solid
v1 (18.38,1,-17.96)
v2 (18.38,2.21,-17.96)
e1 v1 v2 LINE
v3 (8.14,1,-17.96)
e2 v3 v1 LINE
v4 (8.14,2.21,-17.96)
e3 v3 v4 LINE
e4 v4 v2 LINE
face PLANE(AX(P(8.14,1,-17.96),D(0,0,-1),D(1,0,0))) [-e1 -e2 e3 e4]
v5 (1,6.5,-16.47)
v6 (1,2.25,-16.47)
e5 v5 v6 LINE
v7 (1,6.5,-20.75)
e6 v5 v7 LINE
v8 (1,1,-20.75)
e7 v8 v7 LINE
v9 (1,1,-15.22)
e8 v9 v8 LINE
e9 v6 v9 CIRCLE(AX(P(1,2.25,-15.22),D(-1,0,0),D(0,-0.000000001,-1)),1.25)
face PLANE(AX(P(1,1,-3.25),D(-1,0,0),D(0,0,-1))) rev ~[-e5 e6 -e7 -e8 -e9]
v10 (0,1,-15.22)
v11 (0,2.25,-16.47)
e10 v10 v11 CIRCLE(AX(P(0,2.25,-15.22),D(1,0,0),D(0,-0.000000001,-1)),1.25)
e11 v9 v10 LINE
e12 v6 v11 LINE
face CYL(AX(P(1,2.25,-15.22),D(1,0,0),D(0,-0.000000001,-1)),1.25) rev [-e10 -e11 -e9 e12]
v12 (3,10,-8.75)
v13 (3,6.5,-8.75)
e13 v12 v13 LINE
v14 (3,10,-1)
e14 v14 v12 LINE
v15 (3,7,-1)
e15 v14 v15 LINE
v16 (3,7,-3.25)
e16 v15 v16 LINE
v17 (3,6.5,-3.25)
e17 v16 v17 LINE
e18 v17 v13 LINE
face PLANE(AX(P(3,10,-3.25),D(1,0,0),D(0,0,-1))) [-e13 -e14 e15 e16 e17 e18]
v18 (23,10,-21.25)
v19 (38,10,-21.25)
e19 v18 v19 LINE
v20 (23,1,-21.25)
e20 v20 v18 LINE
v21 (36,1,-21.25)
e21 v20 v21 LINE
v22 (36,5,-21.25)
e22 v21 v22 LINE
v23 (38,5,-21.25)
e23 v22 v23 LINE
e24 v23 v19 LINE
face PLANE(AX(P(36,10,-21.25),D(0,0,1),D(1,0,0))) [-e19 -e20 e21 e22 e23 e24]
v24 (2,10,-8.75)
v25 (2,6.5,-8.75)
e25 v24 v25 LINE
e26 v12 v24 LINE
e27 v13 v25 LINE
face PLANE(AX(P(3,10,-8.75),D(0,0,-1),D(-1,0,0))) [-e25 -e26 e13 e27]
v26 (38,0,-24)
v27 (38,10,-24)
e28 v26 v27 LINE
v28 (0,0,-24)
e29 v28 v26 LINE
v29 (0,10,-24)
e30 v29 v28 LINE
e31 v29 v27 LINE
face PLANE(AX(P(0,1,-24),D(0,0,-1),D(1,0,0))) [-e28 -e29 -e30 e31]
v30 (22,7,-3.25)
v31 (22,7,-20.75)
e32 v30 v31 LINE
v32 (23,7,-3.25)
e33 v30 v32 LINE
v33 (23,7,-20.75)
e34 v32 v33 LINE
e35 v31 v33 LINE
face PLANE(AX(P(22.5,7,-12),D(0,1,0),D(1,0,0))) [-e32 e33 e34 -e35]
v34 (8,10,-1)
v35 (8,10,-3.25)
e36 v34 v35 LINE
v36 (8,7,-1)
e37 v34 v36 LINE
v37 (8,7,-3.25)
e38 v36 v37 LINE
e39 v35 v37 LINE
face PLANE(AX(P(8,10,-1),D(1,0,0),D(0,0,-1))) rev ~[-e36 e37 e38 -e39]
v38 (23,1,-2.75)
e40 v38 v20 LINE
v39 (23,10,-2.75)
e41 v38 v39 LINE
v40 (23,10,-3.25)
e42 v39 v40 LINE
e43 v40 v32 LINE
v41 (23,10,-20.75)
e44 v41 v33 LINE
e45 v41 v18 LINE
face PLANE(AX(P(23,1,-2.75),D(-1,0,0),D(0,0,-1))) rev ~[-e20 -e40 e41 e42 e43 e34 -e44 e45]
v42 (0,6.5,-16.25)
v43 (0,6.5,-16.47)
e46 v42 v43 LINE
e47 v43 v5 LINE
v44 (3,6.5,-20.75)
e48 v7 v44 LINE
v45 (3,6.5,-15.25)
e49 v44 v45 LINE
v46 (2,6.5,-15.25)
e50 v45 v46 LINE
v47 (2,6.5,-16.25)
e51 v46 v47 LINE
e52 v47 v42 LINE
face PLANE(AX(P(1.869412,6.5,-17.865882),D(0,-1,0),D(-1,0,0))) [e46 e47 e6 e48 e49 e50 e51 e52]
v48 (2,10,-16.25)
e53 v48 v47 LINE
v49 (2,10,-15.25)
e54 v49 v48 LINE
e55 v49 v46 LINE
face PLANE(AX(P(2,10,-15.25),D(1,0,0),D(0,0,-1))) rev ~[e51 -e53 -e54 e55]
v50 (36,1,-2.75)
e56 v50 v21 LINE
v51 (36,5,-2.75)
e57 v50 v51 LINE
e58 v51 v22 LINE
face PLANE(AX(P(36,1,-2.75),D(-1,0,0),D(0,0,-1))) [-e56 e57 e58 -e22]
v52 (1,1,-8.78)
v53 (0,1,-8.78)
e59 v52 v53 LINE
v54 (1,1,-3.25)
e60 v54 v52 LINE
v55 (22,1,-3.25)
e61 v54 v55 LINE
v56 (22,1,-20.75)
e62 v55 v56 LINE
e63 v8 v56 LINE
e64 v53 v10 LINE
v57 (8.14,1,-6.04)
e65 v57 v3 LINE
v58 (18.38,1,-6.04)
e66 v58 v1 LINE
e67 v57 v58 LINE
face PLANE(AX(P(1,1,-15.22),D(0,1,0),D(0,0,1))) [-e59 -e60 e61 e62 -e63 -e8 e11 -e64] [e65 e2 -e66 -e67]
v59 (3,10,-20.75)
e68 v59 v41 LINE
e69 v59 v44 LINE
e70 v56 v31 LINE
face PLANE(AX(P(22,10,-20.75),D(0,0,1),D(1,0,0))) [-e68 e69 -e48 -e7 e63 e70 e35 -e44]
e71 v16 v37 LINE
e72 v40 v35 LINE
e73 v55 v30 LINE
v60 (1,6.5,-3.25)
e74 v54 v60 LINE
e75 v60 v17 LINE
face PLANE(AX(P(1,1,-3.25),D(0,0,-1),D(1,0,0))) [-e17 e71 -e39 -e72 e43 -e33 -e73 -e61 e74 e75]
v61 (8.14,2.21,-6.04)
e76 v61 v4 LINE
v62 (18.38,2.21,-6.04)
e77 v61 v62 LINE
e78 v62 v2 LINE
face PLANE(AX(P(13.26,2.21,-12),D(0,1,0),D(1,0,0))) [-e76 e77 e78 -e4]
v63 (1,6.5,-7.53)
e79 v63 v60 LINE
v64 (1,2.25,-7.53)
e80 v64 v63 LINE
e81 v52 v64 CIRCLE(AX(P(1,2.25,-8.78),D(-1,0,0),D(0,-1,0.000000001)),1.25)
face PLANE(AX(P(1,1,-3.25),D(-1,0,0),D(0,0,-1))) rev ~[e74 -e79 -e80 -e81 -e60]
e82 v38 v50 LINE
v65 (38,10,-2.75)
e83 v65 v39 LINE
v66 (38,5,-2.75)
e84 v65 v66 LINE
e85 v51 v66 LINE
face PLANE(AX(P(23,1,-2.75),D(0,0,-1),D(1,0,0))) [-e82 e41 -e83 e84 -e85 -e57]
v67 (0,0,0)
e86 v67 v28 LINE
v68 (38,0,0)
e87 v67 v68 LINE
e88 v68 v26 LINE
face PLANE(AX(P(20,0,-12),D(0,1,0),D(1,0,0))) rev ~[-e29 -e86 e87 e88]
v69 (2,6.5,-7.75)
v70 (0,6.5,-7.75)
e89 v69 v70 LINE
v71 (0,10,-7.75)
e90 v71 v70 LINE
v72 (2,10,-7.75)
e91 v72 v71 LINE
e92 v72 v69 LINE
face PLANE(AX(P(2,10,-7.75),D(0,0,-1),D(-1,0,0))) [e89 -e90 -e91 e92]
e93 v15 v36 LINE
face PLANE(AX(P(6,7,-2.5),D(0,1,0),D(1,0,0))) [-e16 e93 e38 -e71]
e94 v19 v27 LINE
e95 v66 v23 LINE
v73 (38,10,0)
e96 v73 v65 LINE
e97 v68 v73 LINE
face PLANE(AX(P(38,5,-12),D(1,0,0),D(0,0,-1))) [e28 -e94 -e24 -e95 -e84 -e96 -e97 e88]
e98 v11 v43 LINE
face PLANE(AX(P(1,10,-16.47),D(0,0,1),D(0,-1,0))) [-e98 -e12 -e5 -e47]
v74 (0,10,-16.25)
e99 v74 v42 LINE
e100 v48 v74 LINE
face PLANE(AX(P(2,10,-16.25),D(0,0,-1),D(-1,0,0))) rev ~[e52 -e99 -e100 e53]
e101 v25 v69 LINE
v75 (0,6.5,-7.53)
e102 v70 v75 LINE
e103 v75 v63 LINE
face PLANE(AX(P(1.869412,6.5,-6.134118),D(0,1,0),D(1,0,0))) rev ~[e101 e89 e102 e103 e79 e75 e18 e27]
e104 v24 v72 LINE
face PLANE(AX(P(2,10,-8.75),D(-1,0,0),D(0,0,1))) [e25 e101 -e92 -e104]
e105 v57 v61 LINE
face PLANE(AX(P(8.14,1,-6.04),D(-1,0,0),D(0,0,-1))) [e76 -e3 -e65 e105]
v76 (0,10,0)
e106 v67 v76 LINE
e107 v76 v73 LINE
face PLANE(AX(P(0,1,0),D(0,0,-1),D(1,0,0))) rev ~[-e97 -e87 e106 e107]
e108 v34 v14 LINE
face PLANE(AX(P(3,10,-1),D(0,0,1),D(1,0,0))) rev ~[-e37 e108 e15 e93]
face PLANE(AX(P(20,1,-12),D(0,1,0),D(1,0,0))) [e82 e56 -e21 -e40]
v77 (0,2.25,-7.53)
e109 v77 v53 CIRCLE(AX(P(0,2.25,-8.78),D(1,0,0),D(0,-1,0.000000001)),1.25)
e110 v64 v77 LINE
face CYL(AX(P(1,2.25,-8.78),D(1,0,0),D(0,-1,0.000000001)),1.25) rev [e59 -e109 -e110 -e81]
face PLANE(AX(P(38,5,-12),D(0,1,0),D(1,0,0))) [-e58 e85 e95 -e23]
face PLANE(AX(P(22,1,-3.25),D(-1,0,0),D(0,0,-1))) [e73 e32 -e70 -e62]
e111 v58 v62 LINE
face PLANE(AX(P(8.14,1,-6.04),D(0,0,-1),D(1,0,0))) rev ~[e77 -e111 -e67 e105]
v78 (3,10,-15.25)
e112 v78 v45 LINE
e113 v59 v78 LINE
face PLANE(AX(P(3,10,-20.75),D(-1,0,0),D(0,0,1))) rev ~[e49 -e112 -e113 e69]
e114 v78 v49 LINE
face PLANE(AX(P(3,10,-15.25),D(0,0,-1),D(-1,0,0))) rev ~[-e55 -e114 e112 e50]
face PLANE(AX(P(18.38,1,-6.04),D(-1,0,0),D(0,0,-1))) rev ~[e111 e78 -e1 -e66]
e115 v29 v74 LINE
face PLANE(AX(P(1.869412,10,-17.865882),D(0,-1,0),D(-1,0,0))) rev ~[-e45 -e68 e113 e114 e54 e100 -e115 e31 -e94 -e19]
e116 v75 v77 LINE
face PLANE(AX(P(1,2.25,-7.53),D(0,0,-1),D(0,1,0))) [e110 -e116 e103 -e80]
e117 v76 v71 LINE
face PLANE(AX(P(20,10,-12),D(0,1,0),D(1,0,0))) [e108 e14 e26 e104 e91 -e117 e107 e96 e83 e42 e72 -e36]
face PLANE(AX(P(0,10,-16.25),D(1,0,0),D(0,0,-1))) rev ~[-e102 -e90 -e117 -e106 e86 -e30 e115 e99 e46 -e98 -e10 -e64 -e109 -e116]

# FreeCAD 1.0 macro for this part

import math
import FreeCAD as App
import Part
import Sketcher
Q = App.Units.Quantity


def add_polygon(sketch, points):
    """Adds a closed chain of lines whose ends are joined by coincident constraints."""
    first, n = sketch.GeometryCount, len(points)
    for a, b in zip(points, points[1:] + points[:1]):
        sketch.addGeometry(Part.LineSegment(App.Vector(*a, 0), App.Vector(*b, 0)), False)
    for i in range(n):
        sketch.addConstraint(Sketcher.Constraint("Coincident", first + i, 2, first + (i + 1) % n, 1))

doc = App.newDocument("Part")
body = doc.addObject("PartDesign::Body", "Body")

sketch1 = body.newObject("Sketcher::SketchObject", "Sketch")
sketch1.AttachmentSupport = (doc.getObject("XZ_Plane"), [""])
sketch1.MapMode = "FlatFace"
add_polygon(sketch1, [(0, -24), (0, 0), (40, 0), (40, -24)])
sketch1.addConstraint([
    Sketcher.Constraint("Vertical", 0),
    Sketcher.Constraint("Horizontal", 1),
    Sketcher.Constraint("Vertical", 2),
    Sketcher.Constraint("Horizontal", 3),
    Sketcher.Constraint("Coincident", 0, 2, -1, 1),
    Sketcher.Constraint("DistanceX", 1, 1, 1, 2, Q("40 mm")),
    Sketcher.Constraint("DistanceY", 0, 1, 0, 2, Q("24 mm")),
])
pad1 = body.newObject("PartDesign::Pad", "Pad")
pad1.Profile = sketch1
pad1.Length = 1
pad1.Reversed = True

sketch2 = body.newObject("Sketcher::SketchObject", "Sketch001")
sketch2.AttachmentSupport = (doc.getObject("XZ_Plane"), [""])
sketch2.MapMode = "FlatFace"
sketch2.AttachmentOffset = App.Placement(App.Vector(0, 0, -1), App.Rotation())
add_polygon(sketch2, [(0, -24), (0, 0), (40, 0), (40, -24)])
add_polygon(sketch2, [(22, -3), (1, -3), (1, -21), (22, -21)])
add_polygon(sketch2, [(36, -3), (23, -3), (23, -21), (36, -21)])
sketch2.addConstraint([
    Sketcher.Constraint("Vertical", 0),
    Sketcher.Constraint("Horizontal", 1),
    Sketcher.Constraint("Vertical", 2),
    Sketcher.Constraint("Horizontal", 3),
    Sketcher.Constraint("Horizontal", 4),
    Sketcher.Constraint("Vertical", 5),
    Sketcher.Constraint("Horizontal", 6),
    Sketcher.Constraint("Vertical", 7),
    Sketcher.Constraint("Horizontal", 8),
    Sketcher.Constraint("Vertical", 9),
    Sketcher.Constraint("Horizontal", 10),
    Sketcher.Constraint("Vertical", 11),
    Sketcher.Constraint("Coincident", 0, 2, -1, 1),
    Sketcher.Constraint("DistanceX", 1, 1, 1, 2, Q("40 mm")),
    Sketcher.Constraint("DistanceX", 4, 2, 4, 1, Q("21 mm")),
    Sketcher.Constraint("DistanceX", 8, 2, 8, 1, Q("13 mm")),
    Sketcher.Constraint("DistanceY", 0, 1, 0, 2, Q("24 mm")),
    Sketcher.Constraint("DistanceY", 5, 2, 5, 1, Q("17.5 mm")),
    Sketcher.Constraint("DistanceY", 9, 2, 9, 1, Q("18.5 mm")),
    Sketcher.Constraint("DistanceX", -1, 1, 4, 2, Q("1 mm")),
    Sketcher.Constraint("DistanceX", -1, 1, 8, 2, Q("23 mm")),
    Sketcher.Constraint("DistanceY", 6, 2, 8, 2, Q("18 mm")),
    Sketcher.Constraint("DistanceY", 4, 2, -1, 1, Q("3.25 mm")),
])
pad2 = body.newObject("PartDesign::Pad", "Pad001")
pad2.Profile = sketch2
pad2.Length = 9
pad2.Reversed = True

sketch3 = body.newObject("Sketcher::SketchObject", "Sketch002")
sketch3.AttachmentSupport = (doc.getObject("XZ_Plane"), [""])
sketch3.MapMode = "FlatFace"
sketch3.AttachmentOffset = App.Placement(App.Vector(0, 0, -10), App.Rotation())
add_polygon(sketch3, [(22, -20.8), (22, -3.2), (23, -3.2), (23, -20.8)])
sketch3.addConstraint([
    Sketcher.Constraint("Vertical", 0),
    Sketcher.Constraint("Horizontal", 1),
    Sketcher.Constraint("Vertical", 2),
    Sketcher.Constraint("Horizontal", 3),
    Sketcher.Constraint("DistanceX", 1, 1, 1, 2, Q("1 mm")),
    Sketcher.Constraint("DistanceY", 0, 1, 0, 2, Q("17.5 mm")),
    Sketcher.Constraint("DistanceX", -1, 1, 0, 2, Q("22 mm")),
    Sketcher.Constraint("DistanceY", 0, 2, -1, 1, Q("3.25 mm")),
])
pocket1 = body.newObject("PartDesign::Pocket", "Pocket")
pocket1.Profile = sketch3
pocket1.Length = 3
pocket1.Reversed = True

sketch4 = body.newObject("Sketcher::SketchObject", "Sketch003")
sketch4.AttachmentSupport = (doc.getObject("XZ_Plane"), [""])
sketch4.MapMode = "FlatFace"
sketch4.AttachmentOffset = App.Placement(App.Vector(0, 0, -1), App.Rotation())
add_polygon(sketch4, [(8, -18), (8, -6), (18, -6), (18, -18)])
sketch4.addConstraint([
    Sketcher.Constraint("Vertical", 0),
    Sketcher.Constraint("Horizontal", 1),
    Sketcher.Constraint("Vertical", 2),
    Sketcher.Constraint("Horizontal", 3),
    Sketcher.Constraint("DistanceX", 1, 1, 1, 2, Q("10.24 mm")),
    Sketcher.Constraint("DistanceY", 0, 1, 0, 2, Q("11.92 mm")),
    Sketcher.Constraint("DistanceX", -1, 1, 0, 2, Q("8.14 mm")),
    Sketcher.Constraint("DistanceY", 0, 2, -1, 1, Q("6.04 mm")),
])
pad3 = body.newObject("PartDesign::Pad", "Pad002")
pad3.Profile = sketch4
pad3.Length = 1.21
pad3.Reversed = True

sketch5 = body.newObject("Sketcher::SketchObject", "Sketch004")
sketch5.AttachmentSupport = (doc.getObject("YZ_Plane"), [""])
sketch5.MapMode = "FlatFace"
sketch5.AttachmentOffset = App.Placement(App.Vector(0, 0, 1), App.Rotation())
sketch5.addGeometry([
    Part.LineSegment(App.Vector(10, -7.5, 0), App.Vector(2.2, -7.5, 0)),
    Part.ArcOfCircle(Part.Circle(App.Vector(2.3, -8.8, 0), App.Vector(0, 0, 1), 1.3), math.radians(90), math.radians(180)),
    Part.LineSegment(App.Vector(1, -8.8, 0), App.Vector(1, -15.2, 0)),
    Part.ArcOfCircle(Part.Circle(App.Vector(2.3, -15.2, 0), App.Vector(0, 0, 1), 1.3), math.radians(-180), math.radians(-90)),
    Part.LineSegment(App.Vector(2.2, -16.5, 0), App.Vector(10, -16.5, 0)),
    Part.LineSegment(App.Vector(10, -16.5, 0), App.Vector(10, -7.5, 0)),
], False)
sketch5.addConstraint([
    Sketcher.Constraint("Tangent", 0, 2, 1, 1),
    Sketcher.Constraint("Tangent", 1, 2, 2, 1),
    Sketcher.Constraint("Tangent", 2, 2, 3, 1),
    Sketcher.Constraint("Tangent", 3, 2, 4, 1),
    Sketcher.Constraint("Coincident", 4, 2, 5, 1),
    Sketcher.Constraint("Coincident", 5, 2, 0, 1),
    Sketcher.Constraint("Horizontal", 0),
    Sketcher.Constraint("Vertical", 2),
    Sketcher.Constraint("Horizontal", 4),
    Sketcher.Constraint("Vertical", 5),
    Sketcher.Constraint("Equal", 1, 3),
    Sketcher.Constraint("Radius", 1, Q("1.25 mm")),
    Sketcher.Constraint("DistanceX", -1, 1, 1, 2, Q("1 mm")),
    Sketcher.Constraint("DistanceX", -1, 1, 4, 2, Q("10 mm")),
    Sketcher.Constraint("DistanceY", 2, 2, 2, 1, Q("6.44 mm")),
    Sketcher.Constraint("DistanceY", 1, 3, -1, 1, Q("8.78 mm")),
])
pocket2 = body.newObject("PartDesign::Pocket", "Pocket001")
pocket2.Profile = sketch5
pocket2.Length = 2

sketch6 = body.newObject("Sketcher::SketchObject", "Sketch005")
sketch6.AttachmentSupport = (doc.getObject("XZ_Plane"), [""])
sketch6.MapMode = "FlatFace"
sketch6.AttachmentOffset = App.Placement(App.Vector(0, 0, -10), App.Rotation())
add_polygon(sketch6, [(36, -21.2), (36, -2.8), (40, -2.8), (40, -21.2)])
sketch6.addConstraint([
    Sketcher.Constraint("Vertical", 0),
    Sketcher.Constraint("Horizontal", 1),
    Sketcher.Constraint("Vertical", 2),
    Sketcher.Constraint("Horizontal", 3),
    Sketcher.Constraint("DistanceX", 1, 1, 1, 2, Q("4 mm")),
    Sketcher.Constraint("DistanceY", 0, 1, 0, 2, Q("18.5 mm")),
    Sketcher.Constraint("DistanceX", -1, 1, 0, 2, Q("36 mm")),
    Sketcher.Constraint("DistanceY", 0, 2, -1, 1, Q("2.75 mm")),
])
pocket3 = body.newObject("PartDesign::Pocket", "Pocket002")
pocket3.Profile = sketch6
pocket3.Length = 5
pocket3.Reversed = True

sketch7 = body.newObject("Sketcher::SketchObject", "Sketch006")
sketch7.AttachmentSupport = (doc.getObject("YZ_Plane"), [""])
sketch7.MapMode = "FlatFace"
sketch7.AttachmentOffset = App.Placement(App.Vector(0, 0, 40), App.Rotation())
add_polygon(sketch7, [(10, 0), (0, 0), (0, -24), (10, -24)])
sketch7.addConstraint([
    Sketcher.Constraint("Horizontal", 0),
    Sketcher.Constraint("Vertical", 1),
    Sketcher.Constraint("Horizontal", 2),
    Sketcher.Constraint("Vertical", 3),
    Sketcher.Constraint("Coincident", 0, 2, -1, 1),
    Sketcher.Constraint("DistanceX", 0, 2, 0, 1, Q("10 mm")),
    Sketcher.Constraint("DistanceY", 1, 2, 1, 1, Q("24 mm")),
])
pocket4 = body.newObject("PartDesign::Pocket", "Pocket003")
pocket4.Profile = sketch7
pocket4.Length = 2

sketch8 = body.newObject("Sketcher::SketchObject", "Sketch007")
sketch8.AttachmentSupport = (doc.getObject("XZ_Plane"), [""])
sketch8.MapMode = "FlatFace"
sketch8.AttachmentOffset = App.Placement(App.Vector(0, 0, -10), App.Rotation())
add_polygon(sketch8, [(4, -4), (4, -1), (8, -1), (8, -4)])
sketch8.addConstraint([
    Sketcher.Constraint("Vertical", 0),
    Sketcher.Constraint("Horizontal", 1),
    Sketcher.Constraint("Vertical", 2),
    Sketcher.Constraint("Horizontal", 3),
    Sketcher.Constraint("DistanceX", 1, 1, 1, 2, Q("4 mm")),
    Sketcher.Constraint("DistanceY", 0, 1, 0, 2, Q("3 mm")),
    Sketcher.Constraint("DistanceX", -1, 1, 0, 2, Q("4 mm")),
    Sketcher.Constraint("DistanceY", 0, 2, -1, 1, Q("1 mm")),
])
pocket5 = body.newObject("PartDesign::Pocket", "Pocket004")
pocket5.Profile = sketch8
pocket5.Length = 3
pocket5.Reversed = True

sketch9 = body.newObject("Sketcher::SketchObject", "Sketch008")
sketch9.AttachmentSupport = (doc.getObject("XZ_Plane"), [""])
sketch9.MapMode = "FlatFace"
sketch9.AttachmentOffset = App.Placement(App.Vector(0, 0, -10), App.Rotation())
add_polygon(sketch9, [(1, -20.75), (1, -16.47), (0, -16.47), (0, -16.25), (2, -16.25), (2, -15.25), (3, -15.25), (3, -20.75)])
add_polygon(sketch9, [(1, -3.25), (3, -3.25), (3, -8.75), (2, -8.75), (2, -7.75), (0, -7.75), (0, -7.53), (1, -7.53)])
sketch9.addConstraint([
    Sketcher.Constraint("Vertical", 0),
    Sketcher.Constraint("Horizontal", 1),
    Sketcher.Constraint("Vertical", 2),
    Sketcher.Constraint("Horizontal", 3),
    Sketcher.Constraint("Vertical", 4),
    Sketcher.Constraint("Horizontal", 5),
    Sketcher.Constraint("Vertical", 6),
    Sketcher.Constraint("Horizontal", 7),
    Sketcher.Constraint("Horizontal", 8),
    Sketcher.Constraint("Vertical", 9),
    Sketcher.Constraint("Horizontal", 10),
    Sketcher.Constraint("Vertical", 11),
    Sketcher.Constraint("Horizontal", 12),
    Sketcher.Constraint("Vertical", 13),
    Sketcher.Constraint("Horizontal", 14),
    Sketcher.Constraint("Vertical", 15),
    Sketcher.Constraint("PointOnObject", 1, 2, -2),
    Sketcher.Constraint("PointOnObject", 12, 2, -2),
    Sketcher.Constraint("Vertical", 6, 2, 8, 2),
    Sketcher.Constraint("Vertical", 4, 2, 10, 2),
    Sketcher.Constraint("Vertical", 7, 2, 14, 2),
    Sketcher.Constraint("Equal", 1, 5),
    Sketcher.Constraint("Equal", 14, 4),
    Sketcher.Constraint("Equal", 6, 9),
    Sketcher.Constraint("Equal", 4, 11),
    Sketcher.Constraint("Equal", 2, 13),
    Sketcher.Constraint("DistanceX", 1, 2, 1, 1, Q("1 mm")),
    Sketcher.Constraint("DistanceX", 3, 1, 3, 2, Q("2 mm")),
    Sketcher.Constraint("DistanceY", 6, 2, 6, 1, Q("5.5 mm")),
    Sketcher.Constraint("DistanceY", 5, 2, 8, 2, Q("12 mm")),
    Sketcher.Constraint("DistanceY", 0, 1, 0, 2, Q("4.28 mm")),
    Sketcher.Constraint("DistanceY", 0, 2, -1, 1, Q("16.47 mm")),
])
pad4 = body.newObject("PartDesign::Pad", "Pad003")
pad4.Profile = sketch9
pad4.Length = 3.5

sketch10 = body.newObject("Sketcher::SketchObject", "Sketch009")
sketch10.AttachmentSupport = (doc.getObject("XZ_Plane"), [""])
sketch10.MapMode = "FlatFace"
sketch10.AttachmentOffset = App.Placement(App.Vector(0, 0, -10), App.Rotation())
add_polygon(sketch10, [(3, -3.2), (3, -1), (4, -1), (4, -3.2)])
sketch10.addConstraint([
    Sketcher.Constraint("Vertical", 0),
    Sketcher.Constraint("Horizontal", 1),
    Sketcher.Constraint("Vertical", 2),
    Sketcher.Constraint("Horizontal", 3),
    Sketcher.Constraint("DistanceX", 1, 1, 1, 2, Q("1 mm")),
    Sketcher.Constraint("DistanceX", -1, 1, 0, 2, Q("3 mm")),
    Sketcher.Constraint("DistanceY", 0, 2, -1, 1, Q("1 mm")),
    Sketcher.Constraint("DistanceY", 0, 1, 0, 2, Q("2.25 mm")),
])
pocket6 = body.newObject("PartDesign::Pocket", "Pocket005")
pocket6.Profile = sketch10
pocket6.Length = 3
pocket6.Reversed = True

doc.recompute()
